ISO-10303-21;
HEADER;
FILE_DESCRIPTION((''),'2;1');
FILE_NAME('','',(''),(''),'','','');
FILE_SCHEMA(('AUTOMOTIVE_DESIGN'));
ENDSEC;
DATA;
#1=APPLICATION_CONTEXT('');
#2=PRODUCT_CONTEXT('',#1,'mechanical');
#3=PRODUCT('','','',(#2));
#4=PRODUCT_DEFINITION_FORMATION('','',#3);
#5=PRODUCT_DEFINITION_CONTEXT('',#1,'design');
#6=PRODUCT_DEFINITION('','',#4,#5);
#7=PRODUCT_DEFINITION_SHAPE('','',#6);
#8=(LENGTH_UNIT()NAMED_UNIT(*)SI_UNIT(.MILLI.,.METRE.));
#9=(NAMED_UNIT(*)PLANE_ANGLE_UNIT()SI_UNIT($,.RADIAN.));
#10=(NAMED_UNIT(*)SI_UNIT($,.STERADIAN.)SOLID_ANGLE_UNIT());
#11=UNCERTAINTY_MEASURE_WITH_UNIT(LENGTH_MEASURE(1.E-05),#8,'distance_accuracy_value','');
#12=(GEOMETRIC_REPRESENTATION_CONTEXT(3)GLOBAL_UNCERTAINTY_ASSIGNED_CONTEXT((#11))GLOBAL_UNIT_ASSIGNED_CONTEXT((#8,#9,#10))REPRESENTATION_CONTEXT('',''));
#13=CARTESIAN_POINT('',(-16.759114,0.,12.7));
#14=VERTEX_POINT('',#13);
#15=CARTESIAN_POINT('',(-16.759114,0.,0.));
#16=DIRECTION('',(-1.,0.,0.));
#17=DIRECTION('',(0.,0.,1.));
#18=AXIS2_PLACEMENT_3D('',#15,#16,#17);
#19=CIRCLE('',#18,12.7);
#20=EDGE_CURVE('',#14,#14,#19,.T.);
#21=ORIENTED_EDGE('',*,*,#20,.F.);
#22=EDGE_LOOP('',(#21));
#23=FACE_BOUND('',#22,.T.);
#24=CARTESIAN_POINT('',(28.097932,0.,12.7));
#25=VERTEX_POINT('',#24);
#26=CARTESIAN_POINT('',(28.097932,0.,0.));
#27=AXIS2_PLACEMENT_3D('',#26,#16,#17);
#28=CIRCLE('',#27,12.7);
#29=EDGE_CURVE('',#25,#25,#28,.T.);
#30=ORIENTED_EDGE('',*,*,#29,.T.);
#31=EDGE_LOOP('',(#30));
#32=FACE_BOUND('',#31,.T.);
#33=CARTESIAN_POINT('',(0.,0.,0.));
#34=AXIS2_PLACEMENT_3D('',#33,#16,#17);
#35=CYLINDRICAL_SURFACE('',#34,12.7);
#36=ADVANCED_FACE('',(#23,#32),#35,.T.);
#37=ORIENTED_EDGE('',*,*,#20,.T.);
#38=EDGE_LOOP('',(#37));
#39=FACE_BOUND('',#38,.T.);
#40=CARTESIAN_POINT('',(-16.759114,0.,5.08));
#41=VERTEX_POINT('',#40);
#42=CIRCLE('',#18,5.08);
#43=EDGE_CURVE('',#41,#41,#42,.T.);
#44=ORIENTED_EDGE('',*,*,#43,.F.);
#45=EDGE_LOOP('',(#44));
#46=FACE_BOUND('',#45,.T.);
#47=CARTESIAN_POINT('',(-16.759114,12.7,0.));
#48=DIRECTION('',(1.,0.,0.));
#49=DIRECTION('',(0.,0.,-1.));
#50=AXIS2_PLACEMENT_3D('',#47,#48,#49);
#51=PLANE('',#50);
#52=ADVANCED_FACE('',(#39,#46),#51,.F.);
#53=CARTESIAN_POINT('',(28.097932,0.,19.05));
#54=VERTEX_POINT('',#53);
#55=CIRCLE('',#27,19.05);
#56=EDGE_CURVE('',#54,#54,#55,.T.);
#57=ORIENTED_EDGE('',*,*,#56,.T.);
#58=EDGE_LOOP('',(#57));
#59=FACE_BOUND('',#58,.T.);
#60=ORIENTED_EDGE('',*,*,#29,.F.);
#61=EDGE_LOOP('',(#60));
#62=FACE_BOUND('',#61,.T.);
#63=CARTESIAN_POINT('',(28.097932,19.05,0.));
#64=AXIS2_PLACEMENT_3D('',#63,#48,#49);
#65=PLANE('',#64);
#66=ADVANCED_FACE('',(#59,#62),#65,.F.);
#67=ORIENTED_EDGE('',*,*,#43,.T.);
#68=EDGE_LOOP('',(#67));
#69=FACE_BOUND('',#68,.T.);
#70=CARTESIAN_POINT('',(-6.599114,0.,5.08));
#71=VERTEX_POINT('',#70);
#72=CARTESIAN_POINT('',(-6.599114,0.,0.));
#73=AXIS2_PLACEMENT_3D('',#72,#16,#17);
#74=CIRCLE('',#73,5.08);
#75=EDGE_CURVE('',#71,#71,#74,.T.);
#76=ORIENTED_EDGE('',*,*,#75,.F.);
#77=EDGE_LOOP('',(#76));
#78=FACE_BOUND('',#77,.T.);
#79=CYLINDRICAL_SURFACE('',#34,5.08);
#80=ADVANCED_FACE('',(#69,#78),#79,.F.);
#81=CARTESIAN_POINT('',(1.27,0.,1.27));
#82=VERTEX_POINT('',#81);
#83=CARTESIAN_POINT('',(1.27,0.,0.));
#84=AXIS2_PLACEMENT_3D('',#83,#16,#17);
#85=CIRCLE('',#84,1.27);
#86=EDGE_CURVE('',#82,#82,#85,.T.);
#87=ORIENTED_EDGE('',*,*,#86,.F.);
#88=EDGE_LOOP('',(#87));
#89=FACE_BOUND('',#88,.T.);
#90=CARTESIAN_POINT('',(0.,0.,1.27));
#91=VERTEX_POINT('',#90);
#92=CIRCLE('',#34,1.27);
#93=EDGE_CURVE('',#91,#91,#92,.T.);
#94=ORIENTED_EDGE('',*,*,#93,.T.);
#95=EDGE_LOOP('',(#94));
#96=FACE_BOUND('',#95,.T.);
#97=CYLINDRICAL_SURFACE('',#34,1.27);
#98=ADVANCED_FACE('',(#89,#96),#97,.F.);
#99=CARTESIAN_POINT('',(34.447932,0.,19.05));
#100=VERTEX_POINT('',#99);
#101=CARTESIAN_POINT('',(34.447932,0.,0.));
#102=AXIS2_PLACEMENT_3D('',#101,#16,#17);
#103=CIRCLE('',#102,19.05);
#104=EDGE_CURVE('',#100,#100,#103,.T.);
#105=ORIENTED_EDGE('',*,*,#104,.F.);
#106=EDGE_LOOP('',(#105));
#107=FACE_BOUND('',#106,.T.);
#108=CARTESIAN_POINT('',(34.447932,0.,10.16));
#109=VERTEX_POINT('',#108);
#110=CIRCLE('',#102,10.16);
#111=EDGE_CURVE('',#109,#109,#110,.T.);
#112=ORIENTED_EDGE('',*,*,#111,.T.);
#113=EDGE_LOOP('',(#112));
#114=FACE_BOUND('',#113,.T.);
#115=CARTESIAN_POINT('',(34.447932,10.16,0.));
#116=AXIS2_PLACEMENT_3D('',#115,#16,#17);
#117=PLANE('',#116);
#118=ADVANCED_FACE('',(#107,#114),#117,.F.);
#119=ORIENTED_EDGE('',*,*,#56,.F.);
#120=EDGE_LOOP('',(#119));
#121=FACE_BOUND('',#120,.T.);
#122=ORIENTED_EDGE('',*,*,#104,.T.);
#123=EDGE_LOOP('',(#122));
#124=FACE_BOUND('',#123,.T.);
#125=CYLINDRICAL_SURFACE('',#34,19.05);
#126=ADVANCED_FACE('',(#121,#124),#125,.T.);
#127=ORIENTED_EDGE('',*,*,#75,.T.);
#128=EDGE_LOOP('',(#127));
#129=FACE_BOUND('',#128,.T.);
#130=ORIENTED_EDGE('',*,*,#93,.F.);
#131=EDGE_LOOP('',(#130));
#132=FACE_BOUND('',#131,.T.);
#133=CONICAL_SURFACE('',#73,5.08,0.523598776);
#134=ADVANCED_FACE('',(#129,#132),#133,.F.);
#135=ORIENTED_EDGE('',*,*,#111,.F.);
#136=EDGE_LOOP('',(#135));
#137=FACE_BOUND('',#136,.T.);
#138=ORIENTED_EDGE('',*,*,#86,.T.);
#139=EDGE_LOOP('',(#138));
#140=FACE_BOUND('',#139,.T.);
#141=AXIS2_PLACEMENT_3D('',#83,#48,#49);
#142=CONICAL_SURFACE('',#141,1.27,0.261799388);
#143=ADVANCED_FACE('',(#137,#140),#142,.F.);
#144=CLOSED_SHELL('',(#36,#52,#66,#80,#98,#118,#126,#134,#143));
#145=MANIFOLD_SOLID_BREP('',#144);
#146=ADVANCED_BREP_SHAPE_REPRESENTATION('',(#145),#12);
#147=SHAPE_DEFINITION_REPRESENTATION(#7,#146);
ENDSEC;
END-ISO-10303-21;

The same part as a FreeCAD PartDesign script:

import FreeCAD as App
import Part
import Sketcher
Q = App.Units.Quantity


def add_polygon(sketch, points):
    """Adds a closed chain of lines whose ends are joined by coincident constraints."""
    first, n = sketch.GeometryCount, len(points)
    for a, b in zip(points, points[1:] + points[:1]):
        sketch.addGeometry(Part.LineSegment(App.Vector(*a, 0), App.Vector(*b, 0)), False)
    for i in range(n):
        sketch.addConstraint(Sketcher.Constraint("Coincident", first + i, 2, first + (i + 1) % n, 1))

doc = App.newDocument("Part")
params = doc.addObject("Spreadsheet::Sheet", "Params")
for row, (alias, value) in enumerate([
    ("sketch1_width", "0.4 in"),
    ("sketch1_height", "0.3 in"),
    ("sketch1_length", "0.3 in"),
    ("sketch1_width2", "0.05 in"),
    ("sketch1_width3", "0.25 in"),
    ("revolution_angle", "360 deg"),
], start=1):
    params.set(f"A{row}", alias)
    params.set(f"B{row}", "=" + value)
    params.setAlias(f"B{row}", alias)

body = doc.addObject("PartDesign::Body", "Body")

# Sketch on XY plane
sketch1 = body.newObject("Sketcher::SketchObject", "Sketch")
sketch1.AttachmentSupport = (doc.getObject("XY_Plane"), [""])
sketch1.MapMode = "FlatFace"
add_polygon(sketch1, [(-16.8, 5.1), (-6.6, 5.1), (0, 1.3), (1.3, 1.3), (34.4, 10.2), (34.4, 19.1), (28.1, 19.1), (28.1, 12.7), (-16.8, 12.7)])  # lines 0-8
sketch1.addConstraint(Sketcher.Constraint("Horizontal", 0))
sketch1.addConstraint(Sketcher.Constraint("Horizontal", 2))
sketch1.addConstraint(Sketcher.Constraint("Vertical", 4))
sketch1.addConstraint(Sketcher.Constraint("Horizontal", 5))
sketch1.addConstraint(Sketcher.Constraint("Vertical", 6))
sketch1.addConstraint(Sketcher.Constraint("Horizontal", 7))
sketch1.addConstraint(Sketcher.Constraint("Vertical", 8))
sketch1.addConstraint(Sketcher.Constraint("PointOnObject", 1, 2, -2))
sketch1.addConstraint(Sketcher.Constraint("Equal", 5, 6))
sketch1.addConstraint(Sketcher.Constraint("DistanceX", 0, 1, 0, 2, Q("0.4 in")))
sketch1.addConstraint(Sketcher.Constraint("DistanceY", 8, 2, 8, 1, Q("0.3 in")))
sketch1.addConstraint(Sketcher.Constraint("Angle", 1, Q("-30 deg")))
sketch1.addConstraint(Sketcher.Constraint("Angle", 3, Q("15 deg")))
sketch1.addConstraint(Sketcher.Constraint("Distance", 1, Q("0.3 in")))
sketch1.addConstraint(Sketcher.Constraint("DistanceX", 2, 1, 2, 2, Q("0.05 in")))
sketch1.addConstraint(Sketcher.Constraint("DistanceX", 5, 2, 5, 1, Q("0.25 in")))
sketch1.addConstraint(Sketcher.Constraint("DistanceY", 4, 1, 4, 2, Q("0.35 in")))
sketch1.addConstraint(Sketcher.Constraint("DistanceY", -1, 1, 0, 2, Q("0.2 in")))
sketch1.setExpression("Constraints[18]", "Params.sketch1_width")
sketch1.setExpression("Constraints[19]", "Params.sketch1_height")
sketch1.setExpression("Constraints[22]", "Params.sketch1_length")
sketch1.setExpression("Constraints[23]", "Params.sketch1_width2")
sketch1.setExpression("Constraints[24]", "Params.sketch1_width3")
revolution = body.newObject("PartDesign::Revolution", "Revolution")
revolution.Profile = sketch1
revolution.ReferenceAxis = (sketch1, ["H_Axis"])
revolution.setExpression("Angle", "Params.revolution_angle")

doc.recompute()
